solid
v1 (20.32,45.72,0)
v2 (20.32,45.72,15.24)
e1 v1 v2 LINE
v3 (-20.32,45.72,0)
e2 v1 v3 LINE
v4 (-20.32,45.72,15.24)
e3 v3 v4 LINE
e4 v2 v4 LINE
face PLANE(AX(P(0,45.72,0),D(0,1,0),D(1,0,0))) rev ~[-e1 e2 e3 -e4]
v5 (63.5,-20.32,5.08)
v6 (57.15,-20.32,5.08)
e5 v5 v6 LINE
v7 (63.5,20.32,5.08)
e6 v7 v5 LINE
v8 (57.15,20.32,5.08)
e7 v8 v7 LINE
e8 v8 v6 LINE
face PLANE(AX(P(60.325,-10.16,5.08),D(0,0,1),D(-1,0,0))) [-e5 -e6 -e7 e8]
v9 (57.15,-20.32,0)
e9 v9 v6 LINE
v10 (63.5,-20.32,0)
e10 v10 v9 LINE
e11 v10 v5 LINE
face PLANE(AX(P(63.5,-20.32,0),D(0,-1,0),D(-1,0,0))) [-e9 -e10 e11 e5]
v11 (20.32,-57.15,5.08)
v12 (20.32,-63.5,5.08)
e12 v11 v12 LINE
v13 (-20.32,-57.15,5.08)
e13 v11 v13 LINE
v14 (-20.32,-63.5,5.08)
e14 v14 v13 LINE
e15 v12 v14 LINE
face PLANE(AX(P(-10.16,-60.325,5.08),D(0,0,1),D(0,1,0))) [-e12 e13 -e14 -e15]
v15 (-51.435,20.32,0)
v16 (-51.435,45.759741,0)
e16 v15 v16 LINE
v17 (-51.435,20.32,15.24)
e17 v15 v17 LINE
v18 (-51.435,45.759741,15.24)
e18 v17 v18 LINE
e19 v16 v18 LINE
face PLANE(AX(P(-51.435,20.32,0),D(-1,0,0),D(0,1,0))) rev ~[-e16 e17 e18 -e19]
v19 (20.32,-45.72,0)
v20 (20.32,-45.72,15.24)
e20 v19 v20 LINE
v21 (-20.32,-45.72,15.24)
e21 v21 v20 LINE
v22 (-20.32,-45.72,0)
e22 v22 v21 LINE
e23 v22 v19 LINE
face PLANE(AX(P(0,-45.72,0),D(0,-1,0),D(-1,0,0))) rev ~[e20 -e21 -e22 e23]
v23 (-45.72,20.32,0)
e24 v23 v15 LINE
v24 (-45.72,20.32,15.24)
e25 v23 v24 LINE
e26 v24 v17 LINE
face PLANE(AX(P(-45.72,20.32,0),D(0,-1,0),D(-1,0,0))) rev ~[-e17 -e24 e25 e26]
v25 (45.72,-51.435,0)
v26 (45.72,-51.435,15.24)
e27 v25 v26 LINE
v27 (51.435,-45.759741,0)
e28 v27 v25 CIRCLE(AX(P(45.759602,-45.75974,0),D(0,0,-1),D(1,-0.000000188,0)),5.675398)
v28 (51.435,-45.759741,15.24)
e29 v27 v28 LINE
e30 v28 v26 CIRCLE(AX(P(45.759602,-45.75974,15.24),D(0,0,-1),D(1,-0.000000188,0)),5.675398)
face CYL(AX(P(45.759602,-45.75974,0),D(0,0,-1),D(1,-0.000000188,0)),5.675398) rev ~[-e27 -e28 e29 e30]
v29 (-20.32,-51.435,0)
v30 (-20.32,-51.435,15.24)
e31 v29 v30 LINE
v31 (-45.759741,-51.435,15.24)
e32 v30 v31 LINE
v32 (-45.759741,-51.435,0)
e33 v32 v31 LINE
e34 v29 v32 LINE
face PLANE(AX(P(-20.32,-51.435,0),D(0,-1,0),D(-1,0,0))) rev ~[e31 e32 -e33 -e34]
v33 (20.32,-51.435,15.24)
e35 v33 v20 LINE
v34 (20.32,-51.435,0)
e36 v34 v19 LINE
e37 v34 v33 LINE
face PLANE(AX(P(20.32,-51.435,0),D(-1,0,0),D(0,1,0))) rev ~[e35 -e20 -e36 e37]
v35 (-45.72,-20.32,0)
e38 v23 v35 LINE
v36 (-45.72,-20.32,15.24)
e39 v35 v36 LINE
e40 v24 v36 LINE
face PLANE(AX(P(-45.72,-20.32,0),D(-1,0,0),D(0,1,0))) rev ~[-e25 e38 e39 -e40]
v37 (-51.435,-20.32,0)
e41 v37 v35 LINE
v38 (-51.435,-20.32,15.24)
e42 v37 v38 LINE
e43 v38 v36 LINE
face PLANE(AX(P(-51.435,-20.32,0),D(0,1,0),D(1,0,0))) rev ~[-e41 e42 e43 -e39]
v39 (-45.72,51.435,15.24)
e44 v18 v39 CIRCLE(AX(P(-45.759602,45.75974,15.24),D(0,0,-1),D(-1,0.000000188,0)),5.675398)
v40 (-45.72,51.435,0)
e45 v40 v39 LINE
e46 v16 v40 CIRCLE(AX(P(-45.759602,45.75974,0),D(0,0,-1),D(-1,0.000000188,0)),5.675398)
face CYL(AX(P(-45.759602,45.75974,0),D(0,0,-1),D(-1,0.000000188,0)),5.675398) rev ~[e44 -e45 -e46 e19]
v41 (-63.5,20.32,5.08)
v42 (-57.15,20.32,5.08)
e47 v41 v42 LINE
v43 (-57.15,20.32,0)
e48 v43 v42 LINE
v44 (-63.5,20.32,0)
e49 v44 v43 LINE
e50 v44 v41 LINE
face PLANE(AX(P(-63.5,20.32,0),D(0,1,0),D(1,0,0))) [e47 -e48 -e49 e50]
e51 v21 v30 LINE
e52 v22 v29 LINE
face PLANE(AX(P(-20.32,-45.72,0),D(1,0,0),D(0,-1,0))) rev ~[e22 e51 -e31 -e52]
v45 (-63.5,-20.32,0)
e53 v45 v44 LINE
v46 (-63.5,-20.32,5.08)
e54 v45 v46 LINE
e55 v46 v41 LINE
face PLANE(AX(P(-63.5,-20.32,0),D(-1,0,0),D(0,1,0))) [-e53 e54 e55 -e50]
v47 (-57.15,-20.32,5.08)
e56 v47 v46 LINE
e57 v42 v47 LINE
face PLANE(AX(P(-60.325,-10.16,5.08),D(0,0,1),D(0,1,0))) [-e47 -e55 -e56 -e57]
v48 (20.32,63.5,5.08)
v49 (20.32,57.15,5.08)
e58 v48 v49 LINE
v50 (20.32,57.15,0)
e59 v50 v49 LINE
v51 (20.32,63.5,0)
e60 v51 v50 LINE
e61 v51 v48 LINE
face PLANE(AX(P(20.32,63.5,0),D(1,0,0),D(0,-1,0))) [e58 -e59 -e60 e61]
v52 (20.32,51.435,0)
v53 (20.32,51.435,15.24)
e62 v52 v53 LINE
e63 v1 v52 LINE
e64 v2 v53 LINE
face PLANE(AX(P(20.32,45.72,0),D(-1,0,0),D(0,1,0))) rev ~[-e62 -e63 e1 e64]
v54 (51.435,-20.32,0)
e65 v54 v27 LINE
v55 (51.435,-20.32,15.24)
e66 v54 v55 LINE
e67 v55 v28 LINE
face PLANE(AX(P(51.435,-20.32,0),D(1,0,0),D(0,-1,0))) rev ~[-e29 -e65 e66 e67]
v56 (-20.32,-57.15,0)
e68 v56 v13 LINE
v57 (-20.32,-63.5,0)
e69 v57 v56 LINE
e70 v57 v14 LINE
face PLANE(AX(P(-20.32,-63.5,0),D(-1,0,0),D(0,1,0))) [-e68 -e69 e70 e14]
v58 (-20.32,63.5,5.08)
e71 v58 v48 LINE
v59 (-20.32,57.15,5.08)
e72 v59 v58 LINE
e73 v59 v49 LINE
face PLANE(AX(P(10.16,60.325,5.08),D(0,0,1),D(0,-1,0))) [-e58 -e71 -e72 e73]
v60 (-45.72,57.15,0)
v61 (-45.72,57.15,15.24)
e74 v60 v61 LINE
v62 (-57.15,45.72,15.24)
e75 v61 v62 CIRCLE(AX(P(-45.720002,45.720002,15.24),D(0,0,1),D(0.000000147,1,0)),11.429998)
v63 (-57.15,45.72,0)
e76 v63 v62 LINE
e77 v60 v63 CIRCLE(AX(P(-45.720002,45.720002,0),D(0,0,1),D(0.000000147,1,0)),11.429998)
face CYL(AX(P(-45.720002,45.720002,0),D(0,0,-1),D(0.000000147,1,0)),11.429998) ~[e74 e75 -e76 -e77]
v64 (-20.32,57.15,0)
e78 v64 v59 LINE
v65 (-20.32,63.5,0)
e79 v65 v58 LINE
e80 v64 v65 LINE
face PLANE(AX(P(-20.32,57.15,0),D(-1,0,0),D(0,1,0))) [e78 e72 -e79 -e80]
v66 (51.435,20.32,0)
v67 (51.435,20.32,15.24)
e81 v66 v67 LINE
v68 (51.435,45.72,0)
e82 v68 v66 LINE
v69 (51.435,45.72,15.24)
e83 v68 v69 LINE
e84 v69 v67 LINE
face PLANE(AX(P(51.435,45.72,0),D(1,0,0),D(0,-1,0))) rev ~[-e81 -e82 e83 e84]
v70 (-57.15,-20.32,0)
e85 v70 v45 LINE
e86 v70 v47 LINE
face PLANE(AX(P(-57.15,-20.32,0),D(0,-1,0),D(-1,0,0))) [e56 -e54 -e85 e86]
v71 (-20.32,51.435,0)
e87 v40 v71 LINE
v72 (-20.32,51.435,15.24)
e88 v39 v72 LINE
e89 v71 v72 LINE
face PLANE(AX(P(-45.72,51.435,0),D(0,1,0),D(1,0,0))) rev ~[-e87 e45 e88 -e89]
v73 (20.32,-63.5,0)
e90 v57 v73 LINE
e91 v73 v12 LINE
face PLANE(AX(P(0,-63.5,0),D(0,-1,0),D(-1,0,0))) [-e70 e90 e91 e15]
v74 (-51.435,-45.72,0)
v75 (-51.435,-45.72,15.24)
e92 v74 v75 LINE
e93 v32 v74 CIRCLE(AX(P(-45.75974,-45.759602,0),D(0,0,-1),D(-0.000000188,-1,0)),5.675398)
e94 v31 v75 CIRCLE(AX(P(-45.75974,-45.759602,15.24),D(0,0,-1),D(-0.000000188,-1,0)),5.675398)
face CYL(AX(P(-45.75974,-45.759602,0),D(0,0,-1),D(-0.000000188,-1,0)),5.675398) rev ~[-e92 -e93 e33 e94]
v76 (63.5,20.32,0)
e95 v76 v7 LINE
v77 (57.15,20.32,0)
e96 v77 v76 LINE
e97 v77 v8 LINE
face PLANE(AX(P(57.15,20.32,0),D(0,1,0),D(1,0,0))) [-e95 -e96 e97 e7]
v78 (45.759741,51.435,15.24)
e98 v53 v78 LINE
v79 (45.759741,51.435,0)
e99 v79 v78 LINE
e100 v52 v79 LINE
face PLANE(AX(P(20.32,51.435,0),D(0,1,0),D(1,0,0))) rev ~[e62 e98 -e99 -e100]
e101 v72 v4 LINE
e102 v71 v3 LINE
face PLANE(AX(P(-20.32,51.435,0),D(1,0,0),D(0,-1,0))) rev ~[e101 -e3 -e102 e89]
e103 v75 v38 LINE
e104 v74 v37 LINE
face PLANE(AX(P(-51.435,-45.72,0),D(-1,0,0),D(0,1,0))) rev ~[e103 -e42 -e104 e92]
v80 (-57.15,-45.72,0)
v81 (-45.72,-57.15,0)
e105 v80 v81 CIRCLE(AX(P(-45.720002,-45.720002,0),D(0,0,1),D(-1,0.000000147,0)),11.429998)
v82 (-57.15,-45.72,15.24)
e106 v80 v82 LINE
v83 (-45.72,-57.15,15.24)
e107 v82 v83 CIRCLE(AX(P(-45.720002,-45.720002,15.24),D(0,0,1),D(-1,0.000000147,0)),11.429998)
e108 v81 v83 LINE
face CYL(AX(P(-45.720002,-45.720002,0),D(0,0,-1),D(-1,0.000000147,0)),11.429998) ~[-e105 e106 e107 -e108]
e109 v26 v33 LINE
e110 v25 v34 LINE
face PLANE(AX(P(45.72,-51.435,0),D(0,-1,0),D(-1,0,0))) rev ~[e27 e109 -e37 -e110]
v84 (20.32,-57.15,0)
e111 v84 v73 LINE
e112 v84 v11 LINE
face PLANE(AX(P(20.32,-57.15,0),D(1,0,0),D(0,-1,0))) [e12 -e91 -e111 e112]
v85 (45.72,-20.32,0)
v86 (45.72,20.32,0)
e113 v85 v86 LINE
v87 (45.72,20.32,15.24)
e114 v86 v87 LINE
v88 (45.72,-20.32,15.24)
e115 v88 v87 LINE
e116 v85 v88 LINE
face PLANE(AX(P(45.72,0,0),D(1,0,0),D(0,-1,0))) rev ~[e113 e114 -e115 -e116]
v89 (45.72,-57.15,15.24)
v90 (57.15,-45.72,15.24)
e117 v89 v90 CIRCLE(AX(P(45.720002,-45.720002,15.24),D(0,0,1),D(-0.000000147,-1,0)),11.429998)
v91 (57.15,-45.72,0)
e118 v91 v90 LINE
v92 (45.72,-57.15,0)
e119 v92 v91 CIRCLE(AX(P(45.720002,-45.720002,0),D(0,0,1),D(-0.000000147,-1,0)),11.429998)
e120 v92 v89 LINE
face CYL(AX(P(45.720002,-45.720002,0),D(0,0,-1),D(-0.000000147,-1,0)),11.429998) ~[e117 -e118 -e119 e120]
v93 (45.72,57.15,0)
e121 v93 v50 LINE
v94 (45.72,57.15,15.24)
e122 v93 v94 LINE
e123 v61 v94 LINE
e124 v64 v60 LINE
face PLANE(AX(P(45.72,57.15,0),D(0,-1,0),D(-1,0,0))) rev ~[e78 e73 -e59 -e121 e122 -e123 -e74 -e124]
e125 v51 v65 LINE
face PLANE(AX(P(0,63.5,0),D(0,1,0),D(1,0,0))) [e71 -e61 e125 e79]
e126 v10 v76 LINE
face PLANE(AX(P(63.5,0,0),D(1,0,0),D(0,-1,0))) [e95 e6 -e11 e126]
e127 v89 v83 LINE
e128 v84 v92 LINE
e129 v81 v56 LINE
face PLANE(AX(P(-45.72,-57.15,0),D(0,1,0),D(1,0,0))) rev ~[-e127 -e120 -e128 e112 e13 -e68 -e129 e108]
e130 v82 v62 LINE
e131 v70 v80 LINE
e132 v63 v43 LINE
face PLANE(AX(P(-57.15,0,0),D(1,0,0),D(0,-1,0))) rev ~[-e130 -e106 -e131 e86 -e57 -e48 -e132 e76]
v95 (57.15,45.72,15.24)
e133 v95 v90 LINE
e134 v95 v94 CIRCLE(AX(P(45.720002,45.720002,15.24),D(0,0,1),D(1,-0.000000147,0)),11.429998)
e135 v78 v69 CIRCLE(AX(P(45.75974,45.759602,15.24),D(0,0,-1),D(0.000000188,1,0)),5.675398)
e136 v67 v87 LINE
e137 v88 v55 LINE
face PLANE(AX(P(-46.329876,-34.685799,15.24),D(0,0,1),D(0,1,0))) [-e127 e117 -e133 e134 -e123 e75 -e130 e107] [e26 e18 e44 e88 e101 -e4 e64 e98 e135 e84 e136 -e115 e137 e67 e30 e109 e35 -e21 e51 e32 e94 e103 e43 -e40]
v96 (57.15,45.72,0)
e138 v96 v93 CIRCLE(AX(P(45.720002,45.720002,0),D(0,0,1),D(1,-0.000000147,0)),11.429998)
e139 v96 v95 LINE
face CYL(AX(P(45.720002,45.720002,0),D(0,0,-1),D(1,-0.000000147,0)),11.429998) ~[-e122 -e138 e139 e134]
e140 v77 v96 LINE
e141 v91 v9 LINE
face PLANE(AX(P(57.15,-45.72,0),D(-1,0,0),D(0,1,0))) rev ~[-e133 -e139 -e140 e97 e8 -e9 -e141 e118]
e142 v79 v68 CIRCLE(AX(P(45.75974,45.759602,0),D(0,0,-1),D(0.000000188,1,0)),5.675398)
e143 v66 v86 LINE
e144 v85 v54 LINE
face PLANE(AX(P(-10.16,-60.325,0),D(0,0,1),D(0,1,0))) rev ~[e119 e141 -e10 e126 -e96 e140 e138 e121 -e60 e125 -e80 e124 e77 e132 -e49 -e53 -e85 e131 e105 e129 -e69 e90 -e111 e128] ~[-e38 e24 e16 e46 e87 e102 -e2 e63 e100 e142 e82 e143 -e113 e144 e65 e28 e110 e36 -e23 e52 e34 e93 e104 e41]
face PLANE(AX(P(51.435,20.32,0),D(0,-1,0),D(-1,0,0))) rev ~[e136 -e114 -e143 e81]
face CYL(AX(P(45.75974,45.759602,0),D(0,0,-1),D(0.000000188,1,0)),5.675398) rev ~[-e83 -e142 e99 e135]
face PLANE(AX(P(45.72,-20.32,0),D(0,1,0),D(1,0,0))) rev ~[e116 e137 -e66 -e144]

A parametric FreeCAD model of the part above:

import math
import FreeCAD as App
import Part
import Sketcher
from FreeCAD import Vector
Q = App.Units.Quantity


def add_polygon(sketch, points):
    """Adds a closed chain of lines whose ends are joined by coincident constraints."""
    first, n = sketch.GeometryCount, len(points)
    for a, b in zip(points, points[1:] + points[:1]):
        sketch.addGeometry(Part.LineSegment(App.Vector(*a, 0), App.Vector(*b, 0)), False)
    for i in range(n):
        sketch.addConstraint(Sketcher.Constraint("Coincident", first + i, 2, first + (i + 1) % n, 1))

doc = App.newDocument("Part")
body = doc.addObject("PartDesign::Body", "Body")

sketch1 = body.newObject("Sketcher::SketchObject", "Sketch")
sketch1.AttachmentSupport = (doc.getObject("XY_Plane"), [""])
sketch1.MapMode = "FlatFace"
sketch1.addGeometry([
    Part.LineSegment(Vector(-20, 46, 0), Vector(0, 46, 0)),
    Part.LineSegment(Vector(0, 46, 0), Vector(0, 57, 0)),
    Part.LineSegment(Vector(0, 57, 0), Vector(-46, 57, 0)),
    Part.ArcOfCircle(Part.Circle(Vector(-46, 46, 0), Vector(0, 0, 1), 11), math.radians(90), math.radians(180)),
    Part.LineSegment(Vector(-57, 46, 0), Vector(-57, 0, 0)),
    Part.LineSegment(Vector(-57, 0, 0), Vector(-46, 0, 0)),
    Part.LineSegment(Vector(-46, 0, 0), Vector(-46, 20, 0)),
    Part.LineSegment(Vector(-46, 20, 0), Vector(-51, 20, 0)),
    Part.LineSegment(Vector(-51, 20, 0), Vector(-51, 46, 0)),
    Part.ArcOfCircle(Part.Circle(Vector(-46, 46, 0), Vector(0, 0, 1), 6), math.radians(90), math.radians(180)),
    Part.LineSegment(Vector(-46, 51, 0), Vector(-20, 51, 0)),
    Part.LineSegment(Vector(-20, 51, 0), Vector(-20, 46, 0)),
], False)
sketch1.addConstraint([
    Sketcher.Constraint("Coincident", 0, 2, 1, 1),
    Sketcher.Constraint("Coincident", 1, 2, 2, 1),
    Sketcher.Constraint("Tangent", 2, 2, 3, 1),
    Sketcher.Constraint("Tangent", 3, 2, 4, 1),
    Sketcher.Constraint("Coincident", 4, 2, 5, 1),
    Sketcher.Constraint("Coincident", 5, 2, 6, 1),
    Sketcher.Constraint("Coincident", 6, 2, 7, 1),
    Sketcher.Constraint("Coincident", 7, 2, 8, 1),
    Sketcher.Constraint("Tangent", 8, 2, 9, 2),
    Sketcher.Constraint("Coincident", 9, 1, 10, 1),
    Sketcher.Constraint("Coincident", 10, 2, 11, 1),
    Sketcher.Constraint("Coincident", 11, 2, 0, 1),
    Sketcher.Constraint("Horizontal", 0),
    Sketcher.Constraint("Vertical", 1),
    Sketcher.Constraint("Horizontal", 2),
    Sketcher.Constraint("Vertical", 4),
    Sketcher.Constraint("Horizontal", 5),
    Sketcher.Constraint("Vertical", 6),
    Sketcher.Constraint("Horizontal", 7),
    Sketcher.Constraint("Vertical", 8),
    Sketcher.Constraint("Horizontal", 10),
    Sketcher.Constraint("Vertical", 11),
    Sketcher.Constraint("PointOnObject", 0, 2, -2),
    Sketcher.Constraint("PointOnObject", 4, 2, -1),
    Sketcher.Constraint("Horizontal", 3, 3, 0, 2),
    Sketcher.Constraint("Vertical", 2, 2, 5, 2),
    Sketcher.Constraint("Vertical", 6, 2, 9, 1),
    Sketcher.Constraint("Equal", 2, 4),
    Sketcher.Constraint("Equal", 0, 6),
    Sketcher.Constraint("Equal", 7, 11),
    Sketcher.Constraint("DistanceX", 10, 1, 10, 2, Q("1 in")),
    Sketcher.Constraint("Radius", 3, Q("0.4499999 in")),
    Sketcher.Constraint("DistanceX", 0, 1, 0, 2, Q("0.8 in")),
    Sketcher.Constraint("DistanceX", 7, 2, 7, 1, Q("0.225 in")),
    Sketcher.Constraint("Radius", 9, Q("5.675398 mm")),
])
pad1 = body.newObject("PartDesign::Pad", "Pad")
pad1.Profile = sketch1
pad1.Length = Q("0.6 in")

sketch2 = body.newObject("Sketcher::SketchObject", "Sketch001")
sketch2.AttachmentSupport = (doc.getObject("XY_Plane"), [""])
sketch2.MapMode = "FlatFace"
add_polygon(sketch2, [(-64, 20), (-64, 0), (-57, 0), (-57, 20)])
add_polygon(sketch2, [(-20, 64), (-20, 57), (0, 57), (0, 64)])
sketch2.addConstraint([
    Sketcher.Constraint("Vertical", 0),
    Sketcher.Constraint("Horizontal", 1),
    Sketcher.Constraint("Vertical", 2),
    Sketcher.Constraint("Horizontal", 3),
    Sketcher.Constraint("Vertical", 4),
    Sketcher.Constraint("Horizontal", 5),
    Sketcher.Constraint("Vertical", 6),
    Sketcher.Constraint("Horizontal", 7),
    Sketcher.Constraint("PointOnObject", 0, 2, -1),
    Sketcher.Constraint("PointOnObject", 5, 2, -2),
    Sketcher.Constraint("Equal", 7, 0),
    Sketcher.Constraint("Equal", 3, 4),
    Sketcher.Constraint("DistanceX", 5, 1, 5, 2, Q("0.8 in")),
    Sketcher.Constraint("DistanceX", 1, 1, 1, 2, Q("0.25 in")),
    Sketcher.Constraint("DistanceX", 0, 2, -1, 1, Q("2.5 in")),
    Sketcher.Constraint("DistanceY", -1, 1, 6, 2, Q("2.5 in")),
])
pad2 = body.newObject("PartDesign::Pad", "Pad001")
pad2.Profile = sketch2
pad2.Length = Q("0.2 in")
body2 = doc.addObject("PartDesign::Body", "Body001")
doc.recompute()

body2.BaseFeature = body
doc.recompute()

body3 = doc.addObject("PartDesign::Body", "Body002")
body3.BaseFeature = body
body3.Placement = App.Placement(Vector(0, 0, 0), App.Rotation(Vector(0, 0, -1), 90))
boolean = body2.newObject("PartDesign::Boolean", "Boolean")
boolean.Type = "Fuse"
boolean.addObjects([body3])
doc.recompute()

body4 = doc.addObject("PartDesign::Body", "Body003")
body4.BaseFeature = body
body4.Placement = App.Placement(Vector(0, 0, 0), App.Rotation(Vector(0, 0, -1), 180))
boolean2 = body2.newObject("PartDesign::Boolean", "Boolean001")
boolean2.Type = "Fuse"
boolean2.addObjects([body4])
doc.recompute()

body.Placement = App.Placement(Vector(0, 0, 0), App.Rotation(Vector(0, 0, -1), 270))
boolean3 = body2.newObject("PartDesign::Boolean", "Boolean002")
boolean3.Type = "Fuse"
boolean3.addObjects([body])

doc.recompute()
